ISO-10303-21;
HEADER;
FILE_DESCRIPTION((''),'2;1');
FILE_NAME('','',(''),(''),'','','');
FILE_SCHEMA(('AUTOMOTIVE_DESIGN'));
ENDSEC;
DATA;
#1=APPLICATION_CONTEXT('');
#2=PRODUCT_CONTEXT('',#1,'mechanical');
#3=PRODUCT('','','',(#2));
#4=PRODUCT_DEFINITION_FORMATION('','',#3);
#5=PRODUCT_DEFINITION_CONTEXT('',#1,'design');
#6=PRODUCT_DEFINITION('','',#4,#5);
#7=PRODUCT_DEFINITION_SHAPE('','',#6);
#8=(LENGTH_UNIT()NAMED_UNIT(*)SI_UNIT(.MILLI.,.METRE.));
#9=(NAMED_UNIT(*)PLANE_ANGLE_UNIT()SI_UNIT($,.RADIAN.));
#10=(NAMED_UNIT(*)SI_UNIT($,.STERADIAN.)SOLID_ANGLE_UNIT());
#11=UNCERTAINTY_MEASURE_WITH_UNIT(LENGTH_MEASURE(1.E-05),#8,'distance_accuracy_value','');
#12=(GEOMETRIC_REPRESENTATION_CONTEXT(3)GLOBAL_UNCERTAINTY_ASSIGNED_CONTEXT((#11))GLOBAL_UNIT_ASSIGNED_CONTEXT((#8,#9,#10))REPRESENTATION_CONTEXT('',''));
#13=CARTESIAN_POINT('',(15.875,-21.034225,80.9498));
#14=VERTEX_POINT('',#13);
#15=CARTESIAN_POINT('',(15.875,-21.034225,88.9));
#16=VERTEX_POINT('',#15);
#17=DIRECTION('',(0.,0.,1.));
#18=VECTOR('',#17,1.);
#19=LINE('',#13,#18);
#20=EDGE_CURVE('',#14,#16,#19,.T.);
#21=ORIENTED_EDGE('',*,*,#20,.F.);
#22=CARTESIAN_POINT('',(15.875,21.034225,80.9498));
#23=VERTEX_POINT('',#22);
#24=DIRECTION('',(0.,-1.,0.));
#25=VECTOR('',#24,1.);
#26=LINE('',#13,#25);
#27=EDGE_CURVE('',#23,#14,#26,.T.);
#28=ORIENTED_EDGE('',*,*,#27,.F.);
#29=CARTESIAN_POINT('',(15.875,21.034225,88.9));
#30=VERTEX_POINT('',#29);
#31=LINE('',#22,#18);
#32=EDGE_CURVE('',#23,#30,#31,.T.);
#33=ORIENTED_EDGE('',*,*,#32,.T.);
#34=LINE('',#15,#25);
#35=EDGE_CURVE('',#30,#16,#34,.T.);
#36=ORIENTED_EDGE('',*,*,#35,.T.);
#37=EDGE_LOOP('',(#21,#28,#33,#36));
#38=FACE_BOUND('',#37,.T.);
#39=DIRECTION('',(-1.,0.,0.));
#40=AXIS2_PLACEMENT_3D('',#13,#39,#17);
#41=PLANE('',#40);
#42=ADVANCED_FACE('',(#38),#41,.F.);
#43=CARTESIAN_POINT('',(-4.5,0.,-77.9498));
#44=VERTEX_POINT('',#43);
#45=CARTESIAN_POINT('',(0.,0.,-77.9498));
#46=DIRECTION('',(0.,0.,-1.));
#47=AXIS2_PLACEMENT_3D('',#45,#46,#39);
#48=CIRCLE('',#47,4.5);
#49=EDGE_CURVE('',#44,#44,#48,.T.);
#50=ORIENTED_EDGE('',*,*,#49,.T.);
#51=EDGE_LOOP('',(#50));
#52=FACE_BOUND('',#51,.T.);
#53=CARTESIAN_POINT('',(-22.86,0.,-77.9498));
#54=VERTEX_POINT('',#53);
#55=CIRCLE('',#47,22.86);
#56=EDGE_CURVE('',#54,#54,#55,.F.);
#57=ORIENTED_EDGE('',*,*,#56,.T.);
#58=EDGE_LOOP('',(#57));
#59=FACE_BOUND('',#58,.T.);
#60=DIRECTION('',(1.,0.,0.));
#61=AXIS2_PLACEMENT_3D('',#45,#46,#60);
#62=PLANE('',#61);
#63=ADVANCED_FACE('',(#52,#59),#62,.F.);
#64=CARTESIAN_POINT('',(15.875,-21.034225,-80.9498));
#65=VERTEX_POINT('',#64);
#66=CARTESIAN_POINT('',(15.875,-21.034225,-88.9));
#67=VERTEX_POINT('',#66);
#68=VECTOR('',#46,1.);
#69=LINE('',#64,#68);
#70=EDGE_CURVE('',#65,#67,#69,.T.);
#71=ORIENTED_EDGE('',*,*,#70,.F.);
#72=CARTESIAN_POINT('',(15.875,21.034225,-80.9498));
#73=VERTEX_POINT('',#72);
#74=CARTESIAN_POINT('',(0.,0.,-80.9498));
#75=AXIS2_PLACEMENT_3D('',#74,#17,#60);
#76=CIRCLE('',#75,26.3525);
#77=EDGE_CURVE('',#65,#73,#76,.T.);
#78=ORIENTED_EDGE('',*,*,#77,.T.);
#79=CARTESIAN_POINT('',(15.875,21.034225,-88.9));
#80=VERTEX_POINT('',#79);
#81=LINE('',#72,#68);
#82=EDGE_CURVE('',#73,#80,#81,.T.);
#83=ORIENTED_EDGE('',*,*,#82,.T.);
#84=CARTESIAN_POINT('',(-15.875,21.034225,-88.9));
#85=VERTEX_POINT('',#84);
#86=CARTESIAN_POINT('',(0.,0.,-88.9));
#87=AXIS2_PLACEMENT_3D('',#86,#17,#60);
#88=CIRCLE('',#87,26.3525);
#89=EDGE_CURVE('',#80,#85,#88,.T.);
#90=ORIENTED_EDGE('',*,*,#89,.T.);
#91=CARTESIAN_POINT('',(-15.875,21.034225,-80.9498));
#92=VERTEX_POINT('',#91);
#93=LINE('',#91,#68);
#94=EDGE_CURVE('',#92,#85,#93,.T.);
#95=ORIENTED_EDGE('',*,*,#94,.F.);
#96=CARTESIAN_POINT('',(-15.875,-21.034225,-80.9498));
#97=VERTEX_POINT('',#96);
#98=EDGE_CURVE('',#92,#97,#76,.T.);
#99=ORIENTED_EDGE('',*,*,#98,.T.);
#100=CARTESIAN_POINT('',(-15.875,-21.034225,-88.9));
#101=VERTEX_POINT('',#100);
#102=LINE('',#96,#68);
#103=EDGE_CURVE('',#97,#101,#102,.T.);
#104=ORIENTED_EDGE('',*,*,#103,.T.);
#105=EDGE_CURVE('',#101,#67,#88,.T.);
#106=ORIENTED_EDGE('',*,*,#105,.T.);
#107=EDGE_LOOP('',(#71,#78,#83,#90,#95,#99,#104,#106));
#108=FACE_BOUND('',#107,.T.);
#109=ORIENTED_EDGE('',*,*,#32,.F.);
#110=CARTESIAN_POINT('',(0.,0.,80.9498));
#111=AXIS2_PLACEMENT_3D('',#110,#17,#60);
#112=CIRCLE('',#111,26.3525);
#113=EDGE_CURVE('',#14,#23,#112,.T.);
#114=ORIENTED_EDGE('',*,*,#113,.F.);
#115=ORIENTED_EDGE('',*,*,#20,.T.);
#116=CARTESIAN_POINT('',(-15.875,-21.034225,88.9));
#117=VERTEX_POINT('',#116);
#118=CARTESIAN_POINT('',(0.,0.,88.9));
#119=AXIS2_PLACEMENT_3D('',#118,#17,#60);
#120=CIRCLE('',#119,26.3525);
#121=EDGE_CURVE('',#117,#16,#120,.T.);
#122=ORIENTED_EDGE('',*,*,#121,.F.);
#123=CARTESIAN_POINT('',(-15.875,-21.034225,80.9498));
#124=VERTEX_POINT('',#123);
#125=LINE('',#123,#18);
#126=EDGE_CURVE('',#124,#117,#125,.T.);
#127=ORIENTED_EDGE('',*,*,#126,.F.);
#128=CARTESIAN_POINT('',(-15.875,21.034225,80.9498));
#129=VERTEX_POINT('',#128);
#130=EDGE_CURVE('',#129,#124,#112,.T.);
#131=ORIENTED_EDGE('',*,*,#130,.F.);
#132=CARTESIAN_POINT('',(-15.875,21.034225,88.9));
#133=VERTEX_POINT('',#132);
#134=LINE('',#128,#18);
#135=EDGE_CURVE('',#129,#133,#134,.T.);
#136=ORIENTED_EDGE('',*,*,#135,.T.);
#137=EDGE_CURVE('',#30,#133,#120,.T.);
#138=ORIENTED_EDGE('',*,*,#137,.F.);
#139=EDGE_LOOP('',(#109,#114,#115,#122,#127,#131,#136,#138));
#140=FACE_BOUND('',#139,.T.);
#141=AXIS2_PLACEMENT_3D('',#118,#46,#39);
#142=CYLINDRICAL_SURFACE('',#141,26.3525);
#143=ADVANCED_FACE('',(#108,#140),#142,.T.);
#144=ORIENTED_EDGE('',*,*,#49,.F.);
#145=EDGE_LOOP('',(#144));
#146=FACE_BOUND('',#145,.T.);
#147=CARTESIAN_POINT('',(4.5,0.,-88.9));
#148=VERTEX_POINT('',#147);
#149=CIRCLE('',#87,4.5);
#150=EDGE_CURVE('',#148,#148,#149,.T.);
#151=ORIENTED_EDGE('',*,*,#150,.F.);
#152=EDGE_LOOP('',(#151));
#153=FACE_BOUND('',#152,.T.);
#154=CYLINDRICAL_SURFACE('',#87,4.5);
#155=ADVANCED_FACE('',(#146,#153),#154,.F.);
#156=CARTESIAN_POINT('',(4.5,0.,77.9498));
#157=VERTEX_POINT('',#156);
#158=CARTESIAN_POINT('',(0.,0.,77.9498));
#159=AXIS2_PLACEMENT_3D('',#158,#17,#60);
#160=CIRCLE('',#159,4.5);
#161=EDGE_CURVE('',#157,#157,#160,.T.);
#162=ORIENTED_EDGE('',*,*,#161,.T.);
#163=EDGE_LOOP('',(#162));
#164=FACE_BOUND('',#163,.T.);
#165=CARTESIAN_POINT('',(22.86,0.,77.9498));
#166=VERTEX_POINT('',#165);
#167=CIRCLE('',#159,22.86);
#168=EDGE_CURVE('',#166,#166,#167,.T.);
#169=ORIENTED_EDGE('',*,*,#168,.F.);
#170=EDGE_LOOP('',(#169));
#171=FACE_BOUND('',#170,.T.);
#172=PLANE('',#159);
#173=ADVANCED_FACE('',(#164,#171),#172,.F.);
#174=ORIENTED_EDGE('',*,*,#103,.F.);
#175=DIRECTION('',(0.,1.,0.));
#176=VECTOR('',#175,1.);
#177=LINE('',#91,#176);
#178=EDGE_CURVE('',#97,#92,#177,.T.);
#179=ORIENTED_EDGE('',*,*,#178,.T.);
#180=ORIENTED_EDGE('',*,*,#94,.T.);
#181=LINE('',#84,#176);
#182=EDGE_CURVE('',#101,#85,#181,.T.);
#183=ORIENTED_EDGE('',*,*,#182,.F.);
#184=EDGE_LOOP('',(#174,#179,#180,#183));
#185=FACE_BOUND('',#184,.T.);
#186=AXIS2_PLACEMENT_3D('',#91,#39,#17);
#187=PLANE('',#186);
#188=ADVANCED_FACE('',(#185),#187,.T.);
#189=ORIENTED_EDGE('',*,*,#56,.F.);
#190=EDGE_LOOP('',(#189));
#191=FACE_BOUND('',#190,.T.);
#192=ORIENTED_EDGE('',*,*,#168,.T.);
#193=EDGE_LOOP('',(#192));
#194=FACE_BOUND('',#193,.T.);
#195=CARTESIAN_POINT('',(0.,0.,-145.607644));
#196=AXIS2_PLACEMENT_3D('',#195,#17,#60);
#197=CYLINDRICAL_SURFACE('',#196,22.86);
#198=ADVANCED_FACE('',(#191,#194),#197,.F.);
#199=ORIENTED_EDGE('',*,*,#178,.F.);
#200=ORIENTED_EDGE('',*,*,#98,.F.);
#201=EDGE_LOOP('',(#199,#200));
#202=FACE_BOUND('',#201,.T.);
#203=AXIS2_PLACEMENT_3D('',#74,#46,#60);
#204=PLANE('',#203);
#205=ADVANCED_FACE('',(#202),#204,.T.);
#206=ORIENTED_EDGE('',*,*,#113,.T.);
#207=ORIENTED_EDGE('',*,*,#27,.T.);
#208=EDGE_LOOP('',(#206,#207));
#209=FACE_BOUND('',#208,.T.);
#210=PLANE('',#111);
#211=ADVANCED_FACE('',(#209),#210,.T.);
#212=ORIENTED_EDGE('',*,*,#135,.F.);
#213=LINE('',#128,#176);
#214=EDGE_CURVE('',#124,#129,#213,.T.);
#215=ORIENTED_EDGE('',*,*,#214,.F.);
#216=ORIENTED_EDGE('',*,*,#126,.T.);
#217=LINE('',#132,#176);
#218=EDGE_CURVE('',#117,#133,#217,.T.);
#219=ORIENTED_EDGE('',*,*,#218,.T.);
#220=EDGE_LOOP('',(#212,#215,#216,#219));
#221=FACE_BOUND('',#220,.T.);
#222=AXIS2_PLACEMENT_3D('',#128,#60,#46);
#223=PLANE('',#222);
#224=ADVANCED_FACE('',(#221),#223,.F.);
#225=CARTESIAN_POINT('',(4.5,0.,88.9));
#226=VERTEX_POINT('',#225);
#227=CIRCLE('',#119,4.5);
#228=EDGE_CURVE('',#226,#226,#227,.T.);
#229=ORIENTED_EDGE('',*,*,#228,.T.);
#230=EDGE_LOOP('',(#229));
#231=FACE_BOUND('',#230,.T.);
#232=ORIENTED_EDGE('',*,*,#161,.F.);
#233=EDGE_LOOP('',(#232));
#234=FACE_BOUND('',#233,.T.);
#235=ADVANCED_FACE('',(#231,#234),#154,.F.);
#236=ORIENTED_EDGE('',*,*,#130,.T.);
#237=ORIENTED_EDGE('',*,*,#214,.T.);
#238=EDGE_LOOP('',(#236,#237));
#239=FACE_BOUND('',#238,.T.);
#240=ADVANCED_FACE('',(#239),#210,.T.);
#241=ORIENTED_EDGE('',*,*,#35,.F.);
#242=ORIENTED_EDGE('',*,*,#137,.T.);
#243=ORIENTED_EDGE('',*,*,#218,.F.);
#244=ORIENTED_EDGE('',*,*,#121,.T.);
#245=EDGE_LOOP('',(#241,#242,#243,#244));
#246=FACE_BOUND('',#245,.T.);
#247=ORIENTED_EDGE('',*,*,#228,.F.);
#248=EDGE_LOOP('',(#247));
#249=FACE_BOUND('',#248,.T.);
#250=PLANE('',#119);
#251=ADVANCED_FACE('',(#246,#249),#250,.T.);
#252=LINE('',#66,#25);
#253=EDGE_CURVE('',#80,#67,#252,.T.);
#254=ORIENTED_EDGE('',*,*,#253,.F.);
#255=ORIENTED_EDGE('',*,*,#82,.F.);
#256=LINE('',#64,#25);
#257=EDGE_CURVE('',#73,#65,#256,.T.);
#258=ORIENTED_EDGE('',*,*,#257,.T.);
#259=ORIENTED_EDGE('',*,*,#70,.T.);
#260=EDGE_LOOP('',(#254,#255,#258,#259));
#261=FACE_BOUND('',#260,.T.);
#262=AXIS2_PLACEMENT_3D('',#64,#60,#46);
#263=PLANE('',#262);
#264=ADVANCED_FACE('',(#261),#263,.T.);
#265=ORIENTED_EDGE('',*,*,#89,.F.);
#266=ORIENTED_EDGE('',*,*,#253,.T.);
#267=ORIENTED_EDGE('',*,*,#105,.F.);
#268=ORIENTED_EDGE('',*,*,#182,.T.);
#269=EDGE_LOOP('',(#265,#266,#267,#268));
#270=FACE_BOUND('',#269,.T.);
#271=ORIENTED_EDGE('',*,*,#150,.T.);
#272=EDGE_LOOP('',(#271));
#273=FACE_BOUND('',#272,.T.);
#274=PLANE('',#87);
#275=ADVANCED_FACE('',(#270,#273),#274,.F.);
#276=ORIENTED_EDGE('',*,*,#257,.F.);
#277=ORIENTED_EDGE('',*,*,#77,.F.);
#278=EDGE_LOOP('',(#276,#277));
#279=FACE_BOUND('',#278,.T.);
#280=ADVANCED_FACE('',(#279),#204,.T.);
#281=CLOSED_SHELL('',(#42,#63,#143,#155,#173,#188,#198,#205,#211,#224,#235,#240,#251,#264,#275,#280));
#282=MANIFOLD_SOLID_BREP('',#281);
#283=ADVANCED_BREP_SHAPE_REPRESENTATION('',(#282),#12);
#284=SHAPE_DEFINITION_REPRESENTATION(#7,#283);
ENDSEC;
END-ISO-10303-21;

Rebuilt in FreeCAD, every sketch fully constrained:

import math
import FreeCAD as App
import Part
import Sketcher
from FreeCAD import Vector
Q = App.Units.Quantity

doc = App.newDocument("Part")
body = doc.addObject("PartDesign::Body", "Body")

sketch1 = doc.addObject("Sketcher::SketchObject", "Sketch")
body.addObject(sketch1)
sketch1.AttachmentSupport = (doc.XY_Plane, [""])
sketch1.MapMode = "FlatFace"
sketch1.addGeometry(Part.Circle(Vector(0, 0, 0), Vector(0, 0, 1), 26), False)
sketch1.addConstraint([
    Sketcher.Constraint("Coincident", 0, 3, -1, 1),
    Sketcher.Constraint("Diameter", 0, Q("2.075 in")),
])
pad1 = doc.addObject("PartDesign::Pad", "Pad")
body.addObject(pad1)
pad1.Profile = sketch1
pad1.Length = Q("7 in")
pad1.Midplane = True

sketch2 = doc.addObject("Sketcher::SketchObject", "Sketch001")
body.addObject(sketch2)
sketch2.AttachmentSupport = (doc.XY_Plane, [""])
sketch2.MapMode = "FlatFace"
sketch2.AttachmentOffset = App.Placement(Vector(0, 0, 3.5 * 25.4), App.Rotation())
sketch2.addGeometry([
    Part.LineSegment(Vector(-16, -21, 0), Vector(-16, 21, 0)),
    Part.ArcOfCircle(Part.Circle(Vector(0, 0, 0), Vector(0, 0, 1), 26), math.radians(127), math.radians(233)),
    Part.LineSegment(Vector(16, 21, 0), Vector(16, -21, 0)),
    Part.ArcOfCircle(Part.Circle(Vector(0, 0, 0), Vector(0, 0, 1), 26), math.radians(-53), math.radians(53)),
], False)
sketch2.addConstraint([
    Sketcher.Constraint("Coincident", 0, 1, 1, 2),
    Sketcher.Constraint("Coincident", 1, 1, 0, 2),
    Sketcher.Constraint("Coincident", 2, 1, 3, 2),
    Sketcher.Constraint("Coincident", 3, 1, 2, 2),
    Sketcher.Constraint("Vertical", 0),
    Sketcher.Constraint("Vertical", 2),
    Sketcher.Constraint("Coincident", 1, 3, -1, 1),
    Sketcher.Constraint("Coincident", 3, 3, -1, 1),
    Sketcher.Constraint("Equal", 1, 3),
    Sketcher.Constraint("Horizontal", 1, 1, 2, 1),
    Sketcher.Constraint("Radius", 1, Q("1.0375 in")),
    Sketcher.Constraint("DistanceX", 1, 1, 2, 1, Q("1.25 in")),
])
pocket1 = doc.addObject("PartDesign::Pocket", "Pocket")
body.addObject(pocket1)
pocket1.Profile = sketch2
pocket1.Length = Q("0.313 in")
doc.recompute()

mirrored = doc.addObject("PartDesign::Mirrored", "Mirrored")
body.addObject(mirrored)
mirrored.Originals = [pocket1]
mirrored.MirrorPlane = (doc.XY_Plane, [""])
body.Tip = mirrored

sketch3 = doc.addObject("Sketcher::SketchObject", "Sketch002")
body.addObject(sketch3)
sketch3.AttachmentSupport = (doc.XY_Plane, [""])
sketch3.MapMode = "FlatFace"
sketch3.AttachmentOffset = App.Placement(Vector(0, 0, 77.9498), App.Rotation())
sketch3.addGeometry(Part.Circle(Vector(0, 0, 0), Vector(0, 0, 1), 23), False)
sketch3.addConstraint([
    Sketcher.Constraint("Coincident", 0, 3, -1, 1),
    Sketcher.Constraint("Diameter", 0, Q("1.8 in")),
])
pocket2 = doc.addObject("PartDesign::Pocket", "Pocket001")
body.addObject(pocket2)
pocket2.Profile = sketch3
pocket2.Length = 155.8996

sketch4 = doc.addObject("Sketcher::SketchObject", "Sketch003")
body.addObject(sketch4)
sketch4.AttachmentSupport = (doc.XY_Plane, [""])
sketch4.MapMode = "FlatFace"
sketch4.AttachmentOffset = App.Placement(Vector(0, 0, 3.5 * 25.4), App.Rotation())
sketch4.addGeometry(Part.Circle(Vector(0, 0, 0), Vector(0, 0, 1), 4.5), False)
sketch4.addConstraint([
    Sketcher.Constraint("Coincident", 0, 3, -1, 1),
    Sketcher.Constraint("Diameter", 0, Q("9 mm")),
])
pocket3 = doc.addObject("PartDesign::Pocket", "Pocket002")
body.addObject(pocket3)
pocket3.Profile = sketch4
pocket3.Type = "ThroughAll"

doc.recompute()
